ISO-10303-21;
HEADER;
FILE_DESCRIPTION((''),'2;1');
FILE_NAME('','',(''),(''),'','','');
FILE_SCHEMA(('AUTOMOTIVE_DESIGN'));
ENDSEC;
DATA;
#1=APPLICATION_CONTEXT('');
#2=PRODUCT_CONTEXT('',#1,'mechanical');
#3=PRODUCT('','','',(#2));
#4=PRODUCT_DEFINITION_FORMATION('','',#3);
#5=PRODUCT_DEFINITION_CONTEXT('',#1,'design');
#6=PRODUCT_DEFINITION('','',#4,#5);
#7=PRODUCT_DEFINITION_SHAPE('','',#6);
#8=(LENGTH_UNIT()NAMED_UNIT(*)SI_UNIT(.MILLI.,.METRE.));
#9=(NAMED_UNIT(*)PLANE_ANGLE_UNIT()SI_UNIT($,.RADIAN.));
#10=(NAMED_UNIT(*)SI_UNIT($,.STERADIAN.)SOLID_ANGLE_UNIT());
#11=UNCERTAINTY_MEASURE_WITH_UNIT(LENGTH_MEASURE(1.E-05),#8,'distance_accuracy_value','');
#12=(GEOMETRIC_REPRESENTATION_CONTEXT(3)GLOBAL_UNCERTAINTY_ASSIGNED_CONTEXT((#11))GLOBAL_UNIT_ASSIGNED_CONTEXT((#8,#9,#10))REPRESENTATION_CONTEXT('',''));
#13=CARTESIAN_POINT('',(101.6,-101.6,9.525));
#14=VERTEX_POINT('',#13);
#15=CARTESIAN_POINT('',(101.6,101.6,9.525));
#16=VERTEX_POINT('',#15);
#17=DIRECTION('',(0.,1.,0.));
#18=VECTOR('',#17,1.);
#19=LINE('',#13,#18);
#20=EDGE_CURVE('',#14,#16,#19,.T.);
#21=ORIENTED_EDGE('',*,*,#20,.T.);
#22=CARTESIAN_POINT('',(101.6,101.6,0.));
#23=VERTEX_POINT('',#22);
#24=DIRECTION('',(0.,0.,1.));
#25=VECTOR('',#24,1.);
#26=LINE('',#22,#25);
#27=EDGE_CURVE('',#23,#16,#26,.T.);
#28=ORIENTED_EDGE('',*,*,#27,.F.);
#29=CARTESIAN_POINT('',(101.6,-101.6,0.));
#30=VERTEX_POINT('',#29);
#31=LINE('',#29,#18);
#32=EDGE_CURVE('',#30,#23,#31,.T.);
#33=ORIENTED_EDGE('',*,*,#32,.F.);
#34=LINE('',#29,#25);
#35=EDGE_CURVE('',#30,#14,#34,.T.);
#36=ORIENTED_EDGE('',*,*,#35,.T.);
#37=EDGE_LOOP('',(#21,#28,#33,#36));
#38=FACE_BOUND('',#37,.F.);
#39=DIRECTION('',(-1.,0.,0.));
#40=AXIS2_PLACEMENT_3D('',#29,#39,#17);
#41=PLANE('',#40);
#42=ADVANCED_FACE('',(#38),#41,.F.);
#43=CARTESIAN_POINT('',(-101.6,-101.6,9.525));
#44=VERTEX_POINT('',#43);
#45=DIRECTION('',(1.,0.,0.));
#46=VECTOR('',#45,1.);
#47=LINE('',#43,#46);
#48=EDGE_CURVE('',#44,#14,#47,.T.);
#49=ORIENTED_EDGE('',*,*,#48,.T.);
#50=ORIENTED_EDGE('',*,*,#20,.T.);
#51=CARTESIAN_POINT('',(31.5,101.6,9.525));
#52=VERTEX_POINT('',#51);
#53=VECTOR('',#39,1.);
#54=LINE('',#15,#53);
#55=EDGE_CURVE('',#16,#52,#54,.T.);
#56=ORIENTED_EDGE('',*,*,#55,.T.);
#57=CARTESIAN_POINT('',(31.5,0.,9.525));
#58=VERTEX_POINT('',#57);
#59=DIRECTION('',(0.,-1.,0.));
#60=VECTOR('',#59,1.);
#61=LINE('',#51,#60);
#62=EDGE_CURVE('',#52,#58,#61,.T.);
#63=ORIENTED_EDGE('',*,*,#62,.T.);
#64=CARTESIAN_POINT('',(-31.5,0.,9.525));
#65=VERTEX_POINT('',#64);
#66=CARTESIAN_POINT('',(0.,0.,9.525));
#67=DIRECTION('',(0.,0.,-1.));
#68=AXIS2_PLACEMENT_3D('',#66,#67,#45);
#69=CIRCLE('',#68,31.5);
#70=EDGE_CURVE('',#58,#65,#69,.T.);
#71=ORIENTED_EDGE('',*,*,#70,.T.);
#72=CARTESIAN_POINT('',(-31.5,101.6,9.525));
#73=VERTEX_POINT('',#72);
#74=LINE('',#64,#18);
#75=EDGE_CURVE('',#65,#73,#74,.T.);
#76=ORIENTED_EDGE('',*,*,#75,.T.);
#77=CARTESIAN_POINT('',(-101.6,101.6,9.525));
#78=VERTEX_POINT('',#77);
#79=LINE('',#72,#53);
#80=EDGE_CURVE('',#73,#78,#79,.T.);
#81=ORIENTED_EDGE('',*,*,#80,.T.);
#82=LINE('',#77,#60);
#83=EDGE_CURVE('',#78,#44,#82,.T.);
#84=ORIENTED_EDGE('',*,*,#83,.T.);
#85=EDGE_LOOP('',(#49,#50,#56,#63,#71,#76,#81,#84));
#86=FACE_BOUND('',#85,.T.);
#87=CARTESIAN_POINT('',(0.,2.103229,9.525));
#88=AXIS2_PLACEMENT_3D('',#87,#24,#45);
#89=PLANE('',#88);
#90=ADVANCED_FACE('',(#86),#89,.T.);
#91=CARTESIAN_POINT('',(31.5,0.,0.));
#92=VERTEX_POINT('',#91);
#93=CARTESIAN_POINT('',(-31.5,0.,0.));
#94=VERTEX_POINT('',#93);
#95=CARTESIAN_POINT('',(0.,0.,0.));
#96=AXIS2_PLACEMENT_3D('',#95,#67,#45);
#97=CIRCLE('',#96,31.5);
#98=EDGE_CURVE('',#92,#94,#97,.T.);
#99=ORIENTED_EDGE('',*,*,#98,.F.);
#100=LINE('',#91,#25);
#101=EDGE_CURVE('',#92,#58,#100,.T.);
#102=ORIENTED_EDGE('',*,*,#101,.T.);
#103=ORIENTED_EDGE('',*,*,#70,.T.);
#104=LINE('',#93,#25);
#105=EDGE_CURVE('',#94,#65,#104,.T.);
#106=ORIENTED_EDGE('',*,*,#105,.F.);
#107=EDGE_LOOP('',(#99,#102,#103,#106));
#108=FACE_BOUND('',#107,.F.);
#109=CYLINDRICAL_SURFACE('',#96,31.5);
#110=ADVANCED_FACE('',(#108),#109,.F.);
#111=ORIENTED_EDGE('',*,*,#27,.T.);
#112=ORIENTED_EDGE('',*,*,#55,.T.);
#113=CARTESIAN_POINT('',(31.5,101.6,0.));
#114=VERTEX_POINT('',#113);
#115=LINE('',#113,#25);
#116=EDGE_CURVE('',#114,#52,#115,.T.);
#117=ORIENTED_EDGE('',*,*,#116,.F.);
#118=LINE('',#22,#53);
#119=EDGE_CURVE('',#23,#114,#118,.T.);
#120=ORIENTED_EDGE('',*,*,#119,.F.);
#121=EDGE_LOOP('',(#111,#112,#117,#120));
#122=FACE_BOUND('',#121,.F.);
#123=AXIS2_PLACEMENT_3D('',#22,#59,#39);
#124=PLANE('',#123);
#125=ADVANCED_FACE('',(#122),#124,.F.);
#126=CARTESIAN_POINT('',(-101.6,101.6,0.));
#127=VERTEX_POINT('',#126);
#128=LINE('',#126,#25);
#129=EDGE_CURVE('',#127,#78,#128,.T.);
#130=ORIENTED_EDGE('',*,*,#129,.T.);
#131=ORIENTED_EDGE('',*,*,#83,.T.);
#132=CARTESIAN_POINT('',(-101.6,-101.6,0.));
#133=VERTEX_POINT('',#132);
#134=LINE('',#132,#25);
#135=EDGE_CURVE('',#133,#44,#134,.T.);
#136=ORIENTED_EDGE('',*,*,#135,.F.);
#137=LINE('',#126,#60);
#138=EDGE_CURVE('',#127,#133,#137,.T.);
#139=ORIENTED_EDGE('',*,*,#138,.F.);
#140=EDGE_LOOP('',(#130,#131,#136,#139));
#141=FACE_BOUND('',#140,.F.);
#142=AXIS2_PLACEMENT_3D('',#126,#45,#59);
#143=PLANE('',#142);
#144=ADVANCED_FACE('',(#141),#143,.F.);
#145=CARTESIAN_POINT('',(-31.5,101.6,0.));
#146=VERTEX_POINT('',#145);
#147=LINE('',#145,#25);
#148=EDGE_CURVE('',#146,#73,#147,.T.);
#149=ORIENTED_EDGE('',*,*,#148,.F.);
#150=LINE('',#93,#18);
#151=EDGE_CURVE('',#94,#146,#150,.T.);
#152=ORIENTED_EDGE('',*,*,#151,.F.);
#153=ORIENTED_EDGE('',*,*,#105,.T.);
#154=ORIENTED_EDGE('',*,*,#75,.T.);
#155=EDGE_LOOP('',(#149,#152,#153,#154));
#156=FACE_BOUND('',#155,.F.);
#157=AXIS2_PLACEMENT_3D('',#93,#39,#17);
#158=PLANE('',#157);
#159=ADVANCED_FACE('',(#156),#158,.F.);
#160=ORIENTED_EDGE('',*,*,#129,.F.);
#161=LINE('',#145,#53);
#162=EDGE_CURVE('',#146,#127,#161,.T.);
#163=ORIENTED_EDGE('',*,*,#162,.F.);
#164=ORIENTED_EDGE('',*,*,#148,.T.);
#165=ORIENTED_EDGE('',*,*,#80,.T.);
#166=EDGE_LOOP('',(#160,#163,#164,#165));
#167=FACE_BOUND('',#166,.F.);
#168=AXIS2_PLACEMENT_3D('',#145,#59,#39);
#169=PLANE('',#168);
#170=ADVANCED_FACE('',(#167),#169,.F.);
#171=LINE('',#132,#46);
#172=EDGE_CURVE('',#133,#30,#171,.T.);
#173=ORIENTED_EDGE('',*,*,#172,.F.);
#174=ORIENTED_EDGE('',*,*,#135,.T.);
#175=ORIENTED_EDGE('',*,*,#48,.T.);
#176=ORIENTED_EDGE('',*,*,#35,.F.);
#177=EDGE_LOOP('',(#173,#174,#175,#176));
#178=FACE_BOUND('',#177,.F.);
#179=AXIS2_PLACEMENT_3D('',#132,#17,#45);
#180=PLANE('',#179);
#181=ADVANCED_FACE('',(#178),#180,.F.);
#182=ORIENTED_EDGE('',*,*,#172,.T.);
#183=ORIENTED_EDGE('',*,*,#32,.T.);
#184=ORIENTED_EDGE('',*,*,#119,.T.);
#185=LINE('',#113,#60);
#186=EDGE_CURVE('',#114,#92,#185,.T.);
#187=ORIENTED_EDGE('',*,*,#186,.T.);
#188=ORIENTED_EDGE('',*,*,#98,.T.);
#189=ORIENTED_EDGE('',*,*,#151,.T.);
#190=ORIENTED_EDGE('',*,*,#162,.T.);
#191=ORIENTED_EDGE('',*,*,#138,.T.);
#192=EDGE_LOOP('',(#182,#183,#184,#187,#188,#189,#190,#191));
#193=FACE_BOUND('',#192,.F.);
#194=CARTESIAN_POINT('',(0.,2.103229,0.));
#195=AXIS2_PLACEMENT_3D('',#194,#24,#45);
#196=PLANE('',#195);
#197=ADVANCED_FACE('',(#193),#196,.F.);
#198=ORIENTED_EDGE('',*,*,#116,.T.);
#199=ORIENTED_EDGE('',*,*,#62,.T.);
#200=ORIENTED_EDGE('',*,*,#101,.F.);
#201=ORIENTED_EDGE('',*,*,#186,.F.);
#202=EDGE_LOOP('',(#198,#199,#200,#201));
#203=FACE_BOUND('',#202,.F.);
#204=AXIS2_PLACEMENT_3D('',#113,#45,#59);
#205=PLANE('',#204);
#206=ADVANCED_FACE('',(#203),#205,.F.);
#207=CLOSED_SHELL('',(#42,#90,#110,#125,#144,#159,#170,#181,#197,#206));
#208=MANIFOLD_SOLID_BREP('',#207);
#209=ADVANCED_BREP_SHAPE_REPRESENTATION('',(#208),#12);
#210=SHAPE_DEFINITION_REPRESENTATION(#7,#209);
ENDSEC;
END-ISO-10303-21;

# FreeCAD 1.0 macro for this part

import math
import FreeCAD as App
import Part
import Sketcher
from FreeCAD import Vector
Q = App.Units.Quantity

doc = App.newDocument("Part")
body = doc.addObject("PartDesign::Body", "Body")

sketch1 = body.newObject("Sketcher::SketchObject", "Sketch")
sketch1.AttachmentSupport = (doc.getObject("XY_Plane"), [""])
sketch1.MapMode = "FlatFace"
sketch1.addGeometry([
    Part.LineSegment(Vector(-101.6, 101.6, 0), Vector(-101.6, -101.6, 0)),
    Part.LineSegment(Vector(-101.6, -101.6, 0), Vector(101.6, -101.6, 0)),
    Part.LineSegment(Vector(101.6, -101.6, 0), Vector(101.6, 101.6, 0)),
    Part.LineSegment(Vector(101.6, 101.6, 0), Vector(31.5, 101.6, 0)),
    Part.LineSegment(Vector(31.5, 101.6, 0), Vector(31.5, 0, 0)),
    Part.ArcOfCircle(Part.Circle(Vector(0, 0, 0), Vector(0, 0, 1), 31.5), math.radians(180), math.radians(360)),
    Part.LineSegment(Vector(-31.5, 0, 0), Vector(-31.5, 101.6, 0)),
    Part.LineSegment(Vector(-31.5, 101.6, 0), Vector(-101.6, 101.6, 0)),
], False)
sketch1.addConstraint([
    Sketcher.Constraint("Coincident", 0, 2, 1, 1),
    Sketcher.Constraint("Coincident", 1, 2, 2, 1),
    Sketcher.Constraint("Coincident", 2, 2, 3, 1),
    Sketcher.Constraint("Coincident", 3, 2, 4, 1),
    Sketcher.Constraint("Tangent", 4, 2, 5, 2),
    Sketcher.Constraint("Tangent", 5, 1, 6, 1),
    Sketcher.Constraint("Coincident", 6, 2, 7, 1),
    Sketcher.Constraint("Coincident", 7, 2, 0, 1),
    Sketcher.Constraint("Vertical", 0),
    Sketcher.Constraint("Horizontal", 1),
    Sketcher.Constraint("Vertical", 2),
    Sketcher.Constraint("Horizontal", 3),
    Sketcher.Constraint("Vertical", 4),
    Sketcher.Constraint("Vertical", 6),
    Sketcher.Constraint("Horizontal", 7),
    Sketcher.Constraint("Coincident", 5, 3, -1, 1),
    Sketcher.Constraint("Symmetric", 0, 2, 2, 2, -1, 1),
    Sketcher.Constraint("Horizontal", 3, 2, 6, 2),
    Sketcher.Constraint("Equal", 1, 0),
    Sketcher.Constraint("DistanceX", 1, 1, 1, 2, Q("8 in")),
    Sketcher.Constraint("Radius", 5, 31.5),
])
pad1 = body.newObject("PartDesign::Pad", "Pad")
pad1.Profile = sketch1
pad1.Length = Q("0.375 in")

doc.recompute()
